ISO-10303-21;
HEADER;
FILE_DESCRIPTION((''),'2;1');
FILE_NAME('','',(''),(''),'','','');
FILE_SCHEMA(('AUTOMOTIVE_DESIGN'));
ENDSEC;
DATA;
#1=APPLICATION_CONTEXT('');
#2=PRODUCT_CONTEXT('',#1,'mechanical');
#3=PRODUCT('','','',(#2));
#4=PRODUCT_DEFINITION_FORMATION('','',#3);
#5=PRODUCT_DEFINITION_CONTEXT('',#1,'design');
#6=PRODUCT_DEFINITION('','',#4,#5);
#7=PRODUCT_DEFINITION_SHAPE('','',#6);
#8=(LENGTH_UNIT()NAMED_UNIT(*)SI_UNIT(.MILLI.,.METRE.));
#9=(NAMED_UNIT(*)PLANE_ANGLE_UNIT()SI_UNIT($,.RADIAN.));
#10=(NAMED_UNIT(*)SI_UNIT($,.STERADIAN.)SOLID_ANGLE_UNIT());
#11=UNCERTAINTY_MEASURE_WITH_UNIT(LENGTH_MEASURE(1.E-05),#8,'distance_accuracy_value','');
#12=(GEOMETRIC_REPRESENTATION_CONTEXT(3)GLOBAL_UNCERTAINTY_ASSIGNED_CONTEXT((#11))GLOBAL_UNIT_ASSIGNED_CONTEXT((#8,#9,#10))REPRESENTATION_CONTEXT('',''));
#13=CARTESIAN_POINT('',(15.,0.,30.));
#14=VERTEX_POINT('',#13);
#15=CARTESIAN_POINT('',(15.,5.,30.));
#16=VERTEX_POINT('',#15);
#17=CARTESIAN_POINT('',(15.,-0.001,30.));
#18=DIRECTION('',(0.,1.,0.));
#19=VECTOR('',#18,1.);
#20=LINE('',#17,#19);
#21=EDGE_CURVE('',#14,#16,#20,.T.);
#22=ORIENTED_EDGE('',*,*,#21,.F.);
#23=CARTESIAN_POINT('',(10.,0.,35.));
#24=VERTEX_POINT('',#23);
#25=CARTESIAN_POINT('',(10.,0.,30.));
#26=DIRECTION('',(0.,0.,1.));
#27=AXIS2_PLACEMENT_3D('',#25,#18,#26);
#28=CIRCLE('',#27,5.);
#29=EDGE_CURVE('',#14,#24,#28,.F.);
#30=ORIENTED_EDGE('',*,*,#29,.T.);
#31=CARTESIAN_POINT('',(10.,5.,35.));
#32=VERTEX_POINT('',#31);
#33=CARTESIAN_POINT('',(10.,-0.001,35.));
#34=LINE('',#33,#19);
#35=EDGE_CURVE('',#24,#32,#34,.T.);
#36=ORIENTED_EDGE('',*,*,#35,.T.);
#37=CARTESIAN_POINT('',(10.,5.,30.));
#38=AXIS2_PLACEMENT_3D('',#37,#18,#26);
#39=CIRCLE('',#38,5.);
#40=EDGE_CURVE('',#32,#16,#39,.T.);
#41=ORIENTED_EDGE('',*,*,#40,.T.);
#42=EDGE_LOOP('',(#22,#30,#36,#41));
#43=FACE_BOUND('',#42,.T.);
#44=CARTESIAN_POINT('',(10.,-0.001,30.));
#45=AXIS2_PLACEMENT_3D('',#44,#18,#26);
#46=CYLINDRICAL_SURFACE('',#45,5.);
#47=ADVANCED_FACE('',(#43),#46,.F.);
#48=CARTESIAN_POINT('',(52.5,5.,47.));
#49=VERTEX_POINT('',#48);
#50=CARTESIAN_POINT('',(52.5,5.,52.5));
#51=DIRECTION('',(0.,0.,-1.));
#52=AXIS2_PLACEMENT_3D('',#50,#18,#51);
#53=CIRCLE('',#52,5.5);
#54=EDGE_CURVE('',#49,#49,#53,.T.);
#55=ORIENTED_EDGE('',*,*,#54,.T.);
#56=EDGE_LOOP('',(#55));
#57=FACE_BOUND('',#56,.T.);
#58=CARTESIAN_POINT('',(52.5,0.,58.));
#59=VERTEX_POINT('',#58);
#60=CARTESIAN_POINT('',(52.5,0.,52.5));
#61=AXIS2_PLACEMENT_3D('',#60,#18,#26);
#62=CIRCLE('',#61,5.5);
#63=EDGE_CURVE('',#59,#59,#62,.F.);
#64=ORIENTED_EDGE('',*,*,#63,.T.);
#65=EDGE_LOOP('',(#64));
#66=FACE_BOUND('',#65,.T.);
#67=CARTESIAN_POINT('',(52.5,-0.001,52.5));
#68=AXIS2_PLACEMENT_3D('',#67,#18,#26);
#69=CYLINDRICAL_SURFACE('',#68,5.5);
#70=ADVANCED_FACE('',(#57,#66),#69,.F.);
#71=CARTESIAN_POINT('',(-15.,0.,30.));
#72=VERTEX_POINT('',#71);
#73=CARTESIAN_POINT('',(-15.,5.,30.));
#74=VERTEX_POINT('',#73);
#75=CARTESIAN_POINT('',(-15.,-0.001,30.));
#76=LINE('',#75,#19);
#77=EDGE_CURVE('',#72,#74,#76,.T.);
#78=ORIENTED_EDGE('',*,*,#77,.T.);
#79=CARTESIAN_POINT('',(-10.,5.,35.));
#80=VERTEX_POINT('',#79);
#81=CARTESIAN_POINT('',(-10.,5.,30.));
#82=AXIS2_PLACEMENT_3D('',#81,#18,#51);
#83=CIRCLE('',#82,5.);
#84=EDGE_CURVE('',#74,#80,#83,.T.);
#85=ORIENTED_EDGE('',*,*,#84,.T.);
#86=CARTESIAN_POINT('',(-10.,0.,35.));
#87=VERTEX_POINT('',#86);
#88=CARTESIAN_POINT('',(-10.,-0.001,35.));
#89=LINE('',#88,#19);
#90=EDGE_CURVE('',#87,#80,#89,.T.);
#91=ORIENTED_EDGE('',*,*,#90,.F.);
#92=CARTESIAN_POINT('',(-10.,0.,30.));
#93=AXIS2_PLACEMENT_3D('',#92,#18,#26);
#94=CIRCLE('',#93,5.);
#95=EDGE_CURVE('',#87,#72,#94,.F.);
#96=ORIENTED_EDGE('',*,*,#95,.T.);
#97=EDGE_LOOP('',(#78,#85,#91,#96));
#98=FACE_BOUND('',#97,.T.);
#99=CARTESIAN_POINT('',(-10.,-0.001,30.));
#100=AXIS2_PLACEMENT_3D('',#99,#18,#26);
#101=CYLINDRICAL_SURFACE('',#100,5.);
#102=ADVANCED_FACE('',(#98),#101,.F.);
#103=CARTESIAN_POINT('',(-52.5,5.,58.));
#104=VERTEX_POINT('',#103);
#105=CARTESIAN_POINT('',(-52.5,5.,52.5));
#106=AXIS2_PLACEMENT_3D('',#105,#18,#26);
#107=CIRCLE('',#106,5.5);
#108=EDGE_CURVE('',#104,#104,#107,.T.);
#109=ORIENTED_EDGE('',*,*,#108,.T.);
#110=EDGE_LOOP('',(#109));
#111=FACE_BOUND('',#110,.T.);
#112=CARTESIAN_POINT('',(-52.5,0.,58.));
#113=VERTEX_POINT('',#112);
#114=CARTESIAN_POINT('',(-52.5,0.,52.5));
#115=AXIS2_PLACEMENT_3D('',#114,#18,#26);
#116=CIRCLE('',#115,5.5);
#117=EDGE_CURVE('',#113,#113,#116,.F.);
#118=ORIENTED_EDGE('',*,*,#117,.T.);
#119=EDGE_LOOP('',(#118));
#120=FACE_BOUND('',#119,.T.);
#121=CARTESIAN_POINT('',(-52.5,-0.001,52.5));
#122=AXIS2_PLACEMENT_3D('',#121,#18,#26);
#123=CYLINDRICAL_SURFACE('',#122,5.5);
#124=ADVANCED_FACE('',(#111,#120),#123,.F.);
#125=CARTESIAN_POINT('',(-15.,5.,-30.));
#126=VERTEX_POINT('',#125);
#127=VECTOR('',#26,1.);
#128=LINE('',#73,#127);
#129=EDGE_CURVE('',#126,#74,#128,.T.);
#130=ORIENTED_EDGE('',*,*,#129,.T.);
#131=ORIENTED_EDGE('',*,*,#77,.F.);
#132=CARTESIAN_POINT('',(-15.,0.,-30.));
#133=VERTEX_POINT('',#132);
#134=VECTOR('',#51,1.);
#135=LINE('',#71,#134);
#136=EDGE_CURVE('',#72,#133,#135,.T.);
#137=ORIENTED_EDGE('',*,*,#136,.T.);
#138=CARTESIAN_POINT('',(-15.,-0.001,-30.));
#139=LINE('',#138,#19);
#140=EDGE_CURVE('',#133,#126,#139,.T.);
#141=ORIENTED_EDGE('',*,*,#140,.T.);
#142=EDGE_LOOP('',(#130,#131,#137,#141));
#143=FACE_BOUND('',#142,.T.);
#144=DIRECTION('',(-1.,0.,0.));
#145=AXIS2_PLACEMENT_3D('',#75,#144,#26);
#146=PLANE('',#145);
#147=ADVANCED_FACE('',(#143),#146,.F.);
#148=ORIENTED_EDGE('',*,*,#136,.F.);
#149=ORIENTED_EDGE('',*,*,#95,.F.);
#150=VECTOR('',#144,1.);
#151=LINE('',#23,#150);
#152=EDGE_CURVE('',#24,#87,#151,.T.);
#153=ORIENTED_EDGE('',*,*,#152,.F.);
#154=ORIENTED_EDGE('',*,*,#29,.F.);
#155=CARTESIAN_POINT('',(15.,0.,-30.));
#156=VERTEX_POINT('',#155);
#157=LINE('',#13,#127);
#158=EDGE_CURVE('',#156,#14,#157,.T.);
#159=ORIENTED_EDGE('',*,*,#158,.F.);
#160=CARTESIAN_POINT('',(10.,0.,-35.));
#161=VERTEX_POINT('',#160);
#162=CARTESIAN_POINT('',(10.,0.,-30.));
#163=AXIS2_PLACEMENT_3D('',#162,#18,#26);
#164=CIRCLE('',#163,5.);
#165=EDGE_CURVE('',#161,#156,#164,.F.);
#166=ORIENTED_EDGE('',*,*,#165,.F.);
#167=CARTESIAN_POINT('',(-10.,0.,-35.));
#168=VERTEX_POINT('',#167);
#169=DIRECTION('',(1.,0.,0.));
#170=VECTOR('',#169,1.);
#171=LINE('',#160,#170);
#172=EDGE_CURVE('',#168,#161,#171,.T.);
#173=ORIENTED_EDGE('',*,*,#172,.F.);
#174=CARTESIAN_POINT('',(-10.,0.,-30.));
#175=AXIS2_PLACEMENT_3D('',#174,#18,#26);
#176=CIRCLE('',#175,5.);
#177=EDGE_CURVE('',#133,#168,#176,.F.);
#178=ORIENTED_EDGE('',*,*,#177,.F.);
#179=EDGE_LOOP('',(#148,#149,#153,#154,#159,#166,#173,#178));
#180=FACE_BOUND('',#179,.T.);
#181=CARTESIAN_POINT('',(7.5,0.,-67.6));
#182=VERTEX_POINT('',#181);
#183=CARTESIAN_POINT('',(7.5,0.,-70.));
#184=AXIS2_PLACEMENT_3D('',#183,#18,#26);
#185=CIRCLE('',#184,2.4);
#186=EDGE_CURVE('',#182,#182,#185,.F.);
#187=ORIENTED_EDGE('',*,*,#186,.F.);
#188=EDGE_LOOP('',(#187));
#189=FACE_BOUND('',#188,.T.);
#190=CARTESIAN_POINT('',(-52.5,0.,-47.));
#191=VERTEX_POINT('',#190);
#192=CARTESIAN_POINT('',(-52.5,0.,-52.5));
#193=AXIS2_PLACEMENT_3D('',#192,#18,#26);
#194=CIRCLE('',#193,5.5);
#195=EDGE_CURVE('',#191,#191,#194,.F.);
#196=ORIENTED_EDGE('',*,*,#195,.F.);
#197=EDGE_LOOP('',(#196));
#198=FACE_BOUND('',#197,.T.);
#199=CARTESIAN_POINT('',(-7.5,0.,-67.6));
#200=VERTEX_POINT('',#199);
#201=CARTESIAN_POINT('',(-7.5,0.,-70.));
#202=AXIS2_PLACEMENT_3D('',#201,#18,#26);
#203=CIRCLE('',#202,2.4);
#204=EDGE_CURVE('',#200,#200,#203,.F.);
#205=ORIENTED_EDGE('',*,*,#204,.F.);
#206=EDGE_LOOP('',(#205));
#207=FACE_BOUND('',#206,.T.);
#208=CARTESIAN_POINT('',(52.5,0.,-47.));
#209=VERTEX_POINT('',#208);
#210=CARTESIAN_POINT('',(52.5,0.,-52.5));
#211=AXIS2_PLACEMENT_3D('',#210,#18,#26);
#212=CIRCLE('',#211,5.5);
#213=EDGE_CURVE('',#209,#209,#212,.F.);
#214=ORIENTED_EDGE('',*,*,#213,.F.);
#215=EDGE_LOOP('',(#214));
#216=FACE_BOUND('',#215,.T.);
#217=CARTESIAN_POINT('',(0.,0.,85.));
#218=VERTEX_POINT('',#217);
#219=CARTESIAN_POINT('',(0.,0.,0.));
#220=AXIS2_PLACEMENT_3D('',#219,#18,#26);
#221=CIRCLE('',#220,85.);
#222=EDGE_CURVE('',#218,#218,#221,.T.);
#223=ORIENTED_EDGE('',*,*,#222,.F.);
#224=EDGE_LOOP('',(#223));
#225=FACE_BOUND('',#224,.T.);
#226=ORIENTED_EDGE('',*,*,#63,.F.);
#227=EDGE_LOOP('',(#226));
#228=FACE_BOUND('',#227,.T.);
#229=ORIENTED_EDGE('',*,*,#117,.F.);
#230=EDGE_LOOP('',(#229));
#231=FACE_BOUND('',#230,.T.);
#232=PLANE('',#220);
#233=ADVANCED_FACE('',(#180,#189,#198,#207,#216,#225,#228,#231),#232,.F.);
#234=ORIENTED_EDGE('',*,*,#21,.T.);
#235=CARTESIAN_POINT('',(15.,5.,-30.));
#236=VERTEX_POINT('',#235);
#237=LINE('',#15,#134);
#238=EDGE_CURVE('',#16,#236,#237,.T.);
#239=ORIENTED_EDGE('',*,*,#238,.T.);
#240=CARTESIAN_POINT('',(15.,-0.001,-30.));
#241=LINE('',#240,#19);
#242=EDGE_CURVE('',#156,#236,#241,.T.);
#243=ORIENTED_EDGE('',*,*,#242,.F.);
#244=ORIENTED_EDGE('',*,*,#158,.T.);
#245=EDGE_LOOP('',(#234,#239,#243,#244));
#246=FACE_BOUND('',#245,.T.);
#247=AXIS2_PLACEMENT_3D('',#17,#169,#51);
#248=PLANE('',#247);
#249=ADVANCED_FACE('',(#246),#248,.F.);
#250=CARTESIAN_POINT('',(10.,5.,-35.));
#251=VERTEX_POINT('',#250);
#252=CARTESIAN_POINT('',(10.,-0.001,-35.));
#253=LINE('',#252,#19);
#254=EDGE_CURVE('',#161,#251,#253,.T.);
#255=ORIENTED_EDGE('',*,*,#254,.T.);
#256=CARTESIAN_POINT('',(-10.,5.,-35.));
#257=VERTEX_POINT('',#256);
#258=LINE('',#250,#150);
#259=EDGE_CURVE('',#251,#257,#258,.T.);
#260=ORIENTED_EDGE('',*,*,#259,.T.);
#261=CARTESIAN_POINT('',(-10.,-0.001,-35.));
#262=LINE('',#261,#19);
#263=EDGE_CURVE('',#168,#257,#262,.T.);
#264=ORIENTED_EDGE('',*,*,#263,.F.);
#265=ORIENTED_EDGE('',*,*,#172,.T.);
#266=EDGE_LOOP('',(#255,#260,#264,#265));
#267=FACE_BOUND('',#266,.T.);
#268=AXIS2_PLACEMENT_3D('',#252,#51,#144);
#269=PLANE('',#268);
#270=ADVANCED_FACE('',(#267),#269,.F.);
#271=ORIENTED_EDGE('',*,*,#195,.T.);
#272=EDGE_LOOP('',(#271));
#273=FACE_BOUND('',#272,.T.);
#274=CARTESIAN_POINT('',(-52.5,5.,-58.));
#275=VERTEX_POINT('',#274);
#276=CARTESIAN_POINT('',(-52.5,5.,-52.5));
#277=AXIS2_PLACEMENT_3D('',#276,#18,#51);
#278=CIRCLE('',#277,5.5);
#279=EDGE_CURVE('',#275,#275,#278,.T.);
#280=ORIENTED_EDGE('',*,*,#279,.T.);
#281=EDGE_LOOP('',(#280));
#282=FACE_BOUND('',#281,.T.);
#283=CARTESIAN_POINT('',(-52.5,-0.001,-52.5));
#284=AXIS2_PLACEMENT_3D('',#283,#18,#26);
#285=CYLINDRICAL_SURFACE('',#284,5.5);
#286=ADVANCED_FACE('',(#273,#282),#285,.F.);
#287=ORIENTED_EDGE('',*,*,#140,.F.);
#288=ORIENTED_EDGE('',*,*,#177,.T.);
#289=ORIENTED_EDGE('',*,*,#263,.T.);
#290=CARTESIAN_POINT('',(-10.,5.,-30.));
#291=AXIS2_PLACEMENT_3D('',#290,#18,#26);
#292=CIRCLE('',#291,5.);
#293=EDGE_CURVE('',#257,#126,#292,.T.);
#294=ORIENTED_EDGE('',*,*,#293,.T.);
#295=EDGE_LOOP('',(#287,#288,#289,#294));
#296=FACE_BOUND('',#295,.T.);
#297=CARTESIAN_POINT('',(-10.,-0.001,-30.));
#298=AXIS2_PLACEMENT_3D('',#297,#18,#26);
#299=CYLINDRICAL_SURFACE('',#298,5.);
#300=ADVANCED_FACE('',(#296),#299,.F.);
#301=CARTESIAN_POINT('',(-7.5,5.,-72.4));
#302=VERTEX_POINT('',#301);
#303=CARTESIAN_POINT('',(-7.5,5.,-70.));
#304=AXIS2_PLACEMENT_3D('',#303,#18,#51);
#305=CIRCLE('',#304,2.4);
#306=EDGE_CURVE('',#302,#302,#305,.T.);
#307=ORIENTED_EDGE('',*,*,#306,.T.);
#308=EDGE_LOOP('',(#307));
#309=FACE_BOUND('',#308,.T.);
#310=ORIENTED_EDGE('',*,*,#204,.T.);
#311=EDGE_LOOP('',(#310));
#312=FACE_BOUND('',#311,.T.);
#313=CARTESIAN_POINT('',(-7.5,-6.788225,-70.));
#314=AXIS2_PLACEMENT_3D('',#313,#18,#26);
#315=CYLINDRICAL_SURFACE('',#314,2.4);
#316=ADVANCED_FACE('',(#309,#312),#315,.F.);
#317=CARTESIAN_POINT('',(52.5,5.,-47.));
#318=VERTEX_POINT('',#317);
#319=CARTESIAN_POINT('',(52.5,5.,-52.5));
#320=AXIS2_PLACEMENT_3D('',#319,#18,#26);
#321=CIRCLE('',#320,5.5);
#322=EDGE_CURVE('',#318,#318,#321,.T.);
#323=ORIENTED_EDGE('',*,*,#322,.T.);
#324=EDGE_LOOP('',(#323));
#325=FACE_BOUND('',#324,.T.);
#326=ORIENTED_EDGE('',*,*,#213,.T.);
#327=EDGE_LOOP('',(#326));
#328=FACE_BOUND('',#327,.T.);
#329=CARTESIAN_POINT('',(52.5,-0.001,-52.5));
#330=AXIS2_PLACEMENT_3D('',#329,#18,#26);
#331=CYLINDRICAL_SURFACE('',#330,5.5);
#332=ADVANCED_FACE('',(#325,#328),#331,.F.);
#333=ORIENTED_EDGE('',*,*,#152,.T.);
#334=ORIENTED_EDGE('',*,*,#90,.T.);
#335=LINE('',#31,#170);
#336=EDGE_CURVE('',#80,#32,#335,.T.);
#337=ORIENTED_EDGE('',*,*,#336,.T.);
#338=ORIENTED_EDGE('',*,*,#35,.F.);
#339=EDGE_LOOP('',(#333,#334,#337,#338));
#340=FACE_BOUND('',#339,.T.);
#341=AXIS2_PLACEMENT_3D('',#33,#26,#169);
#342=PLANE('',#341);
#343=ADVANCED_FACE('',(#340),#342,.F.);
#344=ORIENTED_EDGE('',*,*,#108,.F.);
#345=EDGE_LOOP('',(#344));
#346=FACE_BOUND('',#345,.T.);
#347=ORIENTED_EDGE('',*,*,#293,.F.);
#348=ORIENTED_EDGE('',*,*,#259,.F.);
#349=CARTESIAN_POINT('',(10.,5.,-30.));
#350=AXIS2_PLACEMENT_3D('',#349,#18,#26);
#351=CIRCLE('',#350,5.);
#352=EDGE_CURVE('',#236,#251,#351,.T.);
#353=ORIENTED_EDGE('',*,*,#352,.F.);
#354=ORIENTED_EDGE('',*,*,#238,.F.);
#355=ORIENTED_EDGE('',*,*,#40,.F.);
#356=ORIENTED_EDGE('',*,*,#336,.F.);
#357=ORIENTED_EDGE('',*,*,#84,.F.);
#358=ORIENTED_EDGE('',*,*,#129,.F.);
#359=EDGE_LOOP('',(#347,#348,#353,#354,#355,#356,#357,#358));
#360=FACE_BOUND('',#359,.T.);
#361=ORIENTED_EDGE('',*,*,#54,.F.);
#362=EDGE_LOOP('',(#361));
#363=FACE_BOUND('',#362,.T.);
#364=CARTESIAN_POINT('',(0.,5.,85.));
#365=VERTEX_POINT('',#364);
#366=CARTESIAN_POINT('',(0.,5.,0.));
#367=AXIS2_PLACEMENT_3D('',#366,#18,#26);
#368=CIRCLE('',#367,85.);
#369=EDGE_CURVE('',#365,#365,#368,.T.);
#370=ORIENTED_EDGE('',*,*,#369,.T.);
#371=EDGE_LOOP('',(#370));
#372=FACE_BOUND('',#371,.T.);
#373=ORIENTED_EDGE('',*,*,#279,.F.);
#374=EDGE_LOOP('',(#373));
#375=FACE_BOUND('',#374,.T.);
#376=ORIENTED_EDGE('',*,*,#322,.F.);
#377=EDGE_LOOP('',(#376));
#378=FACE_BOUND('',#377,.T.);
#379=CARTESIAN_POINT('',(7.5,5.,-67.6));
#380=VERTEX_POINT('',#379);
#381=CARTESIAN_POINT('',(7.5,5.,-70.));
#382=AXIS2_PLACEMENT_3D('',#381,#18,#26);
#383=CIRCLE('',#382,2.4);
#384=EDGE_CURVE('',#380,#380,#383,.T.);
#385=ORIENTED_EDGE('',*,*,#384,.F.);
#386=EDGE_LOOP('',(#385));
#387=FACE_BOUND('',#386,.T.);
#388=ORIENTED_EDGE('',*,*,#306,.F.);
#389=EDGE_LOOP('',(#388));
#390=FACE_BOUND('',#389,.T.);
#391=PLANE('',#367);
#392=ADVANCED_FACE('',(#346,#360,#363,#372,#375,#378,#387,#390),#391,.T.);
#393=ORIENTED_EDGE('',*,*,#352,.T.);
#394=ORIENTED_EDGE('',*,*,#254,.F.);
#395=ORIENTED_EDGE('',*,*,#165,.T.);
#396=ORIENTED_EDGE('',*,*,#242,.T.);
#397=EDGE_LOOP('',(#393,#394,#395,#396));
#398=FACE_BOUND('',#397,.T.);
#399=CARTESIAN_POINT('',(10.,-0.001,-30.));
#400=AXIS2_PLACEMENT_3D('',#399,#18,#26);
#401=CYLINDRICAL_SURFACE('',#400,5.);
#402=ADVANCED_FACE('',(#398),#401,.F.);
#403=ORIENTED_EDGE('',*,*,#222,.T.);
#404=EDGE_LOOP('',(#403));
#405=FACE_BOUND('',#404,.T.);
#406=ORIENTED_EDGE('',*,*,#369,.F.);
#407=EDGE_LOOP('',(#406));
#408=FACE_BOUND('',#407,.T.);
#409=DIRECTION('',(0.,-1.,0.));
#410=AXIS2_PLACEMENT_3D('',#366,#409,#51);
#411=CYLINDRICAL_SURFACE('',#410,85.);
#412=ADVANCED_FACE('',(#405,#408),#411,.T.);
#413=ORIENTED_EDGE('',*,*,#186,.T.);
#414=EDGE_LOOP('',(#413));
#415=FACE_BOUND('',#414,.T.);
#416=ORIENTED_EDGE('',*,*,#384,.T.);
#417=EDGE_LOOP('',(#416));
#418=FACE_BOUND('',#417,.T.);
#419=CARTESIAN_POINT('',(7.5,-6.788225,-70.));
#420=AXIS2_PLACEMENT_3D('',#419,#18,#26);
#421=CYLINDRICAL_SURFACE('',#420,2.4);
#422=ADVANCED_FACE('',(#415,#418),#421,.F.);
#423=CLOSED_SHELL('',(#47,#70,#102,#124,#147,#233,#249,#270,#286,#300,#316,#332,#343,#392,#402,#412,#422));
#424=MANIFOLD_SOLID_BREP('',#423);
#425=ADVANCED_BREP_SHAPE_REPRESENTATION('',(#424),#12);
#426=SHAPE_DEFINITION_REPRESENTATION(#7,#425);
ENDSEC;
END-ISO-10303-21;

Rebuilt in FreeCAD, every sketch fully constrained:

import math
import FreeCAD as App
import Part
import Sketcher

V = App.Vector
Q = App.Units.Quantity

doc = App.newDocument("Part")
body = doc.addObject("PartDesign::Body", "Body")

# Sketch on XZ plane
sketch1 = body.newObject("Sketcher::SketchObject", "Sketch")
sketch1.AttachmentSupport = (doc.getObject("XZ_Plane"), [""])
sketch1.MapMode = "FlatFace"
sketch1.addGeometry(Part.Circle(V(0, 0, 0), V(0, 0, 1), 85), False)
sketch1.addConstraint([
    Sketcher.Constraint("Coincident", 0, 3, -1, 1),
    Sketcher.Constraint("Diameter", 0, Q("170 mm")),
])
pad1 = body.newObject("PartDesign::Pad", "Pad")
pad1.Profile = sketch1
pad1.Length = 5
pad1.Reversed = True

# Sketch on XZ plane
sketch2 = body.newObject("Sketcher::SketchObject", "Sketch001")
sketch2.AttachmentSupport = (doc.getObject("XZ_Plane"), [""])
sketch2.MapMode = "FlatFace"
sketch2.AttachmentOffset = App.Placement(V(0, 0, -5), App.Rotation())
sketch2.addGeometry(Part.Circle(V(52, -52, 0), V(0, 0, 1), 6), False)
sketch2.addConstraint([
    Sketcher.Constraint("Diameter", 0, Q("11 mm")),
    Sketcher.Constraint("DistanceX", -1, 1, 0, 3, Q("52.5 mm")),
    Sketcher.Constraint("DistanceY", 0, 3, -1, 1, Q("52.5 mm")),
])
pocket1 = body.newObject("PartDesign::Pocket", "Pocket")
pocket1.Profile = sketch2
pocket1.Type = "UpToFirst"
pocket1.Reversed = True

# Sketch on XZ plane
sketch3 = body.newObject("Sketcher::SketchObject", "Sketch002")
sketch3.AttachmentSupport = (doc.getObject("XZ_Plane"), [""])
sketch3.MapMode = "FlatFace"
sketch3.AttachmentOffset = App.Placement(V(0, 0, -5), App.Rotation())
sketch3.addGeometry(Part.Circle(V(-52, -52, 0), V(0, 0, 1), 6), False)
sketch3.addConstraint([
    Sketcher.Constraint("Diameter", 0, Q("11 mm")),
    Sketcher.Constraint("DistanceX", 0, 3, -1, 1, Q("52.5 mm")),
    Sketcher.Constraint("DistanceY", 0, 3, -1, 1, Q("52.5 mm")),
])
pocket2 = body.newObject("PartDesign::Pocket", "Pocket001")
pocket2.Profile = sketch3
pocket2.Type = "UpToFirst"
pocket2.Reversed = True

# Sketch on XZ plane
sketch4 = body.newObject("Sketcher::SketchObject", "Sketch003")
sketch4.AttachmentSupport = (doc.getObject("XZ_Plane"), [""])
sketch4.MapMode = "FlatFace"
sketch4.AttachmentOffset = App.Placement(V(0, 0, -5), App.Rotation())
sketch4.addGeometry(Part.Circle(V(52, 52, 0), V(0, 0, 1), 6), False)
sketch4.addConstraint([
    Sketcher.Constraint("Diameter", 0, Q("11 mm")),
    Sketcher.Constraint("DistanceX", -1, 1, 0, 3, Q("52.5 mm")),
    Sketcher.Constraint("DistanceY", -1, 1, 0, 3, Q("52.5 mm")),
])
pocket3 = body.newObject("PartDesign::Pocket", "Pocket002")
pocket3.Profile = sketch4
pocket3.Type = "UpToFirst"
pocket3.Reversed = True

# Sketch on XZ plane
sketch5 = body.newObject("Sketcher::SketchObject", "Sketch004")
sketch5.AttachmentSupport = (doc.getObject("XZ_Plane"), [""])
sketch5.MapMode = "FlatFace"
sketch5.AttachmentOffset = App.Placement(V(0, 0, -5), App.Rotation())
sketch5.addGeometry(Part.Circle(V(-52, 52, 0), V(0, 0, 1), 6), False)
sketch5.addConstraint([
    Sketcher.Constraint("Diameter", 0, Q("11 mm")),
    Sketcher.Constraint("DistanceX", 0, 3, -1, 1, Q("52.5 mm")),
    Sketcher.Constraint("DistanceY", -1, 1, 0, 3, Q("52.5 mm")),
])
pocket4 = body.newObject("PartDesign::Pocket", "Pocket003")
pocket4.Profile = sketch5
pocket4.Type = "UpToFirst"
pocket4.Reversed = True

# Sketch on XZ plane
sketch6 = body.newObject("Sketcher::SketchObject", "Sketch005")
sketch6.AttachmentSupport = (doc.getObject("XZ_Plane"), [""])
sketch6.MapMode = "FlatFace"
sketch6.AttachmentOffset = App.Placement(V(0, 0, -5), App.Rotation())
sketch6.addGeometry([
    Part.LineSegment(V(-10, 35, 0), V(10, 35, 0)),  # 0
    Part.ArcOfCircle(Part.Circle(V(10, 30, 0), V(0, 0, 1), 5), math.radians(0), math.radians(90)),  # 1
    Part.LineSegment(V(15, 30, 0), V(15, -30, 0)),  # 2
    Part.ArcOfCircle(Part.Circle(V(10, -30, 0), V(0, 0, 1), 5), math.radians(-90), math.radians(0)),  # 3
    Part.LineSegment(V(10, -35, 0), V(-10, -35, 0)),  # 4
    Part.ArcOfCircle(Part.Circle(V(-10, -30, 0), V(0, 0, 1), 5), math.radians(180), math.radians(270)),  # 5
    Part.LineSegment(V(-15, -30, 0), V(-15, 30, 0)),  # 6
    Part.ArcOfCircle(Part.Circle(V(-10, 30, 0), V(0, 0, 1), 5), math.radians(90), math.radians(180)),  # 7
], False)
sketch6.addConstraint([
    Sketcher.Constraint("Tangent", 0, 2, 1, 2),
    Sketcher.Constraint("Tangent", 1, 1, 2, 1),
    Sketcher.Constraint("Tangent", 2, 2, 3, 2),
    Sketcher.Constraint("Tangent", 3, 1, 4, 1),
    Sketcher.Constraint("Tangent", 4, 2, 5, 2),
    Sketcher.Constraint("Tangent", 5, 1, 6, 1),
    Sketcher.Constraint("Tangent", 6, 2, 7, 2),
    Sketcher.Constraint("Tangent", 7, 1, 0, 1),
    Sketcher.Constraint("Horizontal", 0),
    Sketcher.Constraint("Vertical", 2),
    Sketcher.Constraint("Horizontal", 4),
    Sketcher.Constraint("Vertical", 6),
    Sketcher.Constraint("Equal", 1, 3),
    Sketcher.Constraint("Equal", 3, 5),
    Sketcher.Constraint("Equal", 5, 7),
    Sketcher.Constraint("Symmetric", 1, 3, 5, 3, -1, 1),
    Sketcher.Constraint("Radius", 1, Q("5 mm")),
    Sketcher.Constraint("DistanceX", 0, 1, 0, 2, Q("20 mm")),
    Sketcher.Constraint("DistanceY", 2, 2, 2, 1, Q("60 mm")),
])
pocket5 = body.newObject("PartDesign::Pocket", "Pocket004")
pocket5.Profile = sketch6
pocket5.Type = "UpToFirst"
pocket5.Reversed = True

# Sketch on XZ plane
sketch7 = body.newObject("Sketcher::SketchObject", "Sketch006")
sketch7.AttachmentSupport = (doc.getObject("XZ_Plane"), [""])
sketch7.MapMode = "FlatFace"
sketch7.AttachmentOffset = App.Placement(V(0, 0, -5), App.Rotation())
sketch7.addGeometry([
    Part.Circle(V(7.5, -70, 0), V(0, 0, 1), 2.4),
    Part.Circle(V(-7.5, -70, 0), V(0, 0, 1), 2.4),
], False)
sketch7.addConstraint([
    Sketcher.Constraint("Equal", 0, 1),
    Sketcher.Constraint("Symmetric", 0, 3, 1, 3, -2),
    Sketcher.Constraint("Diameter", 0, Q("4.8 mm")),
    Sketcher.Constraint("DistanceY", 0, 3, -1, 1, Q("70 mm")),
    Sketcher.Constraint("DistanceX", 1, 3, 0, 3, Q("15 mm")),
])
pocket6 = body.newObject("PartDesign::Pocket", "Pocket005")
pocket6.Profile = sketch7
pocket6.Length = 5
pocket6.Reversed = True

doc.recompute()
